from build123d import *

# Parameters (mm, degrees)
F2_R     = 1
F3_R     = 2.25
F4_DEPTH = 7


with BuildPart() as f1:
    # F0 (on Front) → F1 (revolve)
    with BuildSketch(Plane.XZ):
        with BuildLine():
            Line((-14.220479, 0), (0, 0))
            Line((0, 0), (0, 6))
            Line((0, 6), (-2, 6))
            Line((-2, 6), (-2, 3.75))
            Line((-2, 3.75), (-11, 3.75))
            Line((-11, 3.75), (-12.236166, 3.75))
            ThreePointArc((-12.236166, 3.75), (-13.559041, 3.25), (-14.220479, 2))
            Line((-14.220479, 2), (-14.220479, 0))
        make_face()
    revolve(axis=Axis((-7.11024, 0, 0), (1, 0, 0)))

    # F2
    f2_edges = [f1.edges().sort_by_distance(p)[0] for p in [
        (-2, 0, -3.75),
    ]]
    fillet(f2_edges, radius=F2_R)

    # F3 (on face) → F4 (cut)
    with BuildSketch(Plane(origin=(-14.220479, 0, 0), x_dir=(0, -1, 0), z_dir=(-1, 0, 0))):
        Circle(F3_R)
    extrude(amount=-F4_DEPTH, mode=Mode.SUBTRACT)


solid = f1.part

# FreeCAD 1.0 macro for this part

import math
import FreeCAD as App
import Part
import Sketcher
from FreeCAD import Vector


def edges_at(feature, points):
    """Names of the edges that pass closest to the given points."""
    edges = feature.Shape.Edges
    near = lambda p: min(range(len(edges)), key=lambda i: edges[i].distToShape(Part.Vertex(*p))[0])
    return sorted({f"Edge{near(p) + 1}" for p in points})

doc = App.newDocument("Part")
body = doc.addObject("PartDesign::Body", "Body")

sketch1 = body.newObject("Sketcher::SketchObject", "Sketch")
sketch1.AttachmentSupport = (doc.getObject("XZ_Plane"), [""])
sketch1.MapMode = "FlatFace"
sketch1.addGeometry([
    Part.LineSegment(Vector(-14.2, 0, 0), Vector(0, 0, 0)),
    Part.LineSegment(Vector(0, 0, 0), Vector(0, 6, 0)),
    Part.LineSegment(Vector(0, 6, 0), Vector(-2, 6, 0)),
    Part.LineSegment(Vector(-2, 6, 0), Vector(-2, 3.8, 0)),
    Part.LineSegment(Vector(-2, 3.8, 0), Vector(-12.2, 3.8, 0)),
    Part.ArcOfCircle(Part.Circle(Vector(-12.2, 1.7, 0), Vector(0, 0, 1), 2), math.radians(90), math.radians(173)),
    Part.LineSegment(Vector(-14.2, 2, 0), Vector(-14.2, 0, 0)),
], False)
sketch1.addConstraint([
    Sketcher.Constraint("Coincident", 0, 2, 1, 1),
    Sketcher.Constraint("Coincident", 1, 2, 2, 1),
    Sketcher.Constraint("Coincident", 2, 2, 3, 1),
    Sketcher.Constraint("Coincident", 3, 2, 4, 1),
    Sketcher.Constraint("Tangent", 4, 2, 5, 1),
    Sketcher.Constraint("Coincident", 5, 2, 6, 1),
    Sketcher.Constraint("Coincident", 6, 2, 0, 1),
    Sketcher.Constraint("Horizontal", 0),
    Sketcher.Constraint("Vertical", 1),
    Sketcher.Constraint("Horizontal", 2),
    Sketcher.Constraint("Vertical", 3),
    Sketcher.Constraint("Horizontal", 4),
    Sketcher.Constraint("Vertical", 6),
    Sketcher.Constraint("Coincident", 0, 2, -1, 1),
    Sketcher.Constraint("Equal", 2, 6),
    Sketcher.Constraint("Radius", 5, 2.0),
    Sketcher.Constraint("DistanceX", 2, 2, 2, 1, 2.0),
    Sketcher.Constraint("DistanceY", 1, 1, 1, 2, 6.0),
    Sketcher.Constraint("DistanceY", 3, 2, 3, 1, 2.25),
    Sketcher.Constraint("DistanceX", 0, 1, 0, 2, 14.220479),
])
revolution = body.newObject("PartDesign::Revolution", "Revolution")
revolution.Profile = sketch1
revolution.ReferenceAxis = (sketch1, ["H_Axis"])
revolution.Angle = 360
doc.recompute()

fillet = body.newObject("PartDesign::Fillet", "Fillet")
fillet.Base = (revolution, edges_at(revolution, [(-2, 0, -3.75)]))
fillet.Radius = 1

sketch2 = body.newObject("Sketcher::SketchObject", "Sketch001")
sketch2.AttachmentSupport = (doc.getObject("YZ_Plane"), [""])
sketch2.MapMode = "FlatFace"
sketch2.AttachmentOffset = App.Placement(Vector(0, 0, -14.220479), App.Rotation())
sketch2.addGeometry(Part.Circle(Vector(0, 0, 0), Vector(0, 0, 1), 2.2), False)
sketch2.addConstraint([
    Sketcher.Constraint("Coincident", 0, 3, -1, 1),
    Sketcher.Constraint("Diameter", 0, 4.5),
])
pocket1 = body.newObject("PartDesign::Pocket", "Pocket")
pocket1.Profile = sketch2
pocket1.Length = 7
pocket1.Reversed = True

doc.recompute()
